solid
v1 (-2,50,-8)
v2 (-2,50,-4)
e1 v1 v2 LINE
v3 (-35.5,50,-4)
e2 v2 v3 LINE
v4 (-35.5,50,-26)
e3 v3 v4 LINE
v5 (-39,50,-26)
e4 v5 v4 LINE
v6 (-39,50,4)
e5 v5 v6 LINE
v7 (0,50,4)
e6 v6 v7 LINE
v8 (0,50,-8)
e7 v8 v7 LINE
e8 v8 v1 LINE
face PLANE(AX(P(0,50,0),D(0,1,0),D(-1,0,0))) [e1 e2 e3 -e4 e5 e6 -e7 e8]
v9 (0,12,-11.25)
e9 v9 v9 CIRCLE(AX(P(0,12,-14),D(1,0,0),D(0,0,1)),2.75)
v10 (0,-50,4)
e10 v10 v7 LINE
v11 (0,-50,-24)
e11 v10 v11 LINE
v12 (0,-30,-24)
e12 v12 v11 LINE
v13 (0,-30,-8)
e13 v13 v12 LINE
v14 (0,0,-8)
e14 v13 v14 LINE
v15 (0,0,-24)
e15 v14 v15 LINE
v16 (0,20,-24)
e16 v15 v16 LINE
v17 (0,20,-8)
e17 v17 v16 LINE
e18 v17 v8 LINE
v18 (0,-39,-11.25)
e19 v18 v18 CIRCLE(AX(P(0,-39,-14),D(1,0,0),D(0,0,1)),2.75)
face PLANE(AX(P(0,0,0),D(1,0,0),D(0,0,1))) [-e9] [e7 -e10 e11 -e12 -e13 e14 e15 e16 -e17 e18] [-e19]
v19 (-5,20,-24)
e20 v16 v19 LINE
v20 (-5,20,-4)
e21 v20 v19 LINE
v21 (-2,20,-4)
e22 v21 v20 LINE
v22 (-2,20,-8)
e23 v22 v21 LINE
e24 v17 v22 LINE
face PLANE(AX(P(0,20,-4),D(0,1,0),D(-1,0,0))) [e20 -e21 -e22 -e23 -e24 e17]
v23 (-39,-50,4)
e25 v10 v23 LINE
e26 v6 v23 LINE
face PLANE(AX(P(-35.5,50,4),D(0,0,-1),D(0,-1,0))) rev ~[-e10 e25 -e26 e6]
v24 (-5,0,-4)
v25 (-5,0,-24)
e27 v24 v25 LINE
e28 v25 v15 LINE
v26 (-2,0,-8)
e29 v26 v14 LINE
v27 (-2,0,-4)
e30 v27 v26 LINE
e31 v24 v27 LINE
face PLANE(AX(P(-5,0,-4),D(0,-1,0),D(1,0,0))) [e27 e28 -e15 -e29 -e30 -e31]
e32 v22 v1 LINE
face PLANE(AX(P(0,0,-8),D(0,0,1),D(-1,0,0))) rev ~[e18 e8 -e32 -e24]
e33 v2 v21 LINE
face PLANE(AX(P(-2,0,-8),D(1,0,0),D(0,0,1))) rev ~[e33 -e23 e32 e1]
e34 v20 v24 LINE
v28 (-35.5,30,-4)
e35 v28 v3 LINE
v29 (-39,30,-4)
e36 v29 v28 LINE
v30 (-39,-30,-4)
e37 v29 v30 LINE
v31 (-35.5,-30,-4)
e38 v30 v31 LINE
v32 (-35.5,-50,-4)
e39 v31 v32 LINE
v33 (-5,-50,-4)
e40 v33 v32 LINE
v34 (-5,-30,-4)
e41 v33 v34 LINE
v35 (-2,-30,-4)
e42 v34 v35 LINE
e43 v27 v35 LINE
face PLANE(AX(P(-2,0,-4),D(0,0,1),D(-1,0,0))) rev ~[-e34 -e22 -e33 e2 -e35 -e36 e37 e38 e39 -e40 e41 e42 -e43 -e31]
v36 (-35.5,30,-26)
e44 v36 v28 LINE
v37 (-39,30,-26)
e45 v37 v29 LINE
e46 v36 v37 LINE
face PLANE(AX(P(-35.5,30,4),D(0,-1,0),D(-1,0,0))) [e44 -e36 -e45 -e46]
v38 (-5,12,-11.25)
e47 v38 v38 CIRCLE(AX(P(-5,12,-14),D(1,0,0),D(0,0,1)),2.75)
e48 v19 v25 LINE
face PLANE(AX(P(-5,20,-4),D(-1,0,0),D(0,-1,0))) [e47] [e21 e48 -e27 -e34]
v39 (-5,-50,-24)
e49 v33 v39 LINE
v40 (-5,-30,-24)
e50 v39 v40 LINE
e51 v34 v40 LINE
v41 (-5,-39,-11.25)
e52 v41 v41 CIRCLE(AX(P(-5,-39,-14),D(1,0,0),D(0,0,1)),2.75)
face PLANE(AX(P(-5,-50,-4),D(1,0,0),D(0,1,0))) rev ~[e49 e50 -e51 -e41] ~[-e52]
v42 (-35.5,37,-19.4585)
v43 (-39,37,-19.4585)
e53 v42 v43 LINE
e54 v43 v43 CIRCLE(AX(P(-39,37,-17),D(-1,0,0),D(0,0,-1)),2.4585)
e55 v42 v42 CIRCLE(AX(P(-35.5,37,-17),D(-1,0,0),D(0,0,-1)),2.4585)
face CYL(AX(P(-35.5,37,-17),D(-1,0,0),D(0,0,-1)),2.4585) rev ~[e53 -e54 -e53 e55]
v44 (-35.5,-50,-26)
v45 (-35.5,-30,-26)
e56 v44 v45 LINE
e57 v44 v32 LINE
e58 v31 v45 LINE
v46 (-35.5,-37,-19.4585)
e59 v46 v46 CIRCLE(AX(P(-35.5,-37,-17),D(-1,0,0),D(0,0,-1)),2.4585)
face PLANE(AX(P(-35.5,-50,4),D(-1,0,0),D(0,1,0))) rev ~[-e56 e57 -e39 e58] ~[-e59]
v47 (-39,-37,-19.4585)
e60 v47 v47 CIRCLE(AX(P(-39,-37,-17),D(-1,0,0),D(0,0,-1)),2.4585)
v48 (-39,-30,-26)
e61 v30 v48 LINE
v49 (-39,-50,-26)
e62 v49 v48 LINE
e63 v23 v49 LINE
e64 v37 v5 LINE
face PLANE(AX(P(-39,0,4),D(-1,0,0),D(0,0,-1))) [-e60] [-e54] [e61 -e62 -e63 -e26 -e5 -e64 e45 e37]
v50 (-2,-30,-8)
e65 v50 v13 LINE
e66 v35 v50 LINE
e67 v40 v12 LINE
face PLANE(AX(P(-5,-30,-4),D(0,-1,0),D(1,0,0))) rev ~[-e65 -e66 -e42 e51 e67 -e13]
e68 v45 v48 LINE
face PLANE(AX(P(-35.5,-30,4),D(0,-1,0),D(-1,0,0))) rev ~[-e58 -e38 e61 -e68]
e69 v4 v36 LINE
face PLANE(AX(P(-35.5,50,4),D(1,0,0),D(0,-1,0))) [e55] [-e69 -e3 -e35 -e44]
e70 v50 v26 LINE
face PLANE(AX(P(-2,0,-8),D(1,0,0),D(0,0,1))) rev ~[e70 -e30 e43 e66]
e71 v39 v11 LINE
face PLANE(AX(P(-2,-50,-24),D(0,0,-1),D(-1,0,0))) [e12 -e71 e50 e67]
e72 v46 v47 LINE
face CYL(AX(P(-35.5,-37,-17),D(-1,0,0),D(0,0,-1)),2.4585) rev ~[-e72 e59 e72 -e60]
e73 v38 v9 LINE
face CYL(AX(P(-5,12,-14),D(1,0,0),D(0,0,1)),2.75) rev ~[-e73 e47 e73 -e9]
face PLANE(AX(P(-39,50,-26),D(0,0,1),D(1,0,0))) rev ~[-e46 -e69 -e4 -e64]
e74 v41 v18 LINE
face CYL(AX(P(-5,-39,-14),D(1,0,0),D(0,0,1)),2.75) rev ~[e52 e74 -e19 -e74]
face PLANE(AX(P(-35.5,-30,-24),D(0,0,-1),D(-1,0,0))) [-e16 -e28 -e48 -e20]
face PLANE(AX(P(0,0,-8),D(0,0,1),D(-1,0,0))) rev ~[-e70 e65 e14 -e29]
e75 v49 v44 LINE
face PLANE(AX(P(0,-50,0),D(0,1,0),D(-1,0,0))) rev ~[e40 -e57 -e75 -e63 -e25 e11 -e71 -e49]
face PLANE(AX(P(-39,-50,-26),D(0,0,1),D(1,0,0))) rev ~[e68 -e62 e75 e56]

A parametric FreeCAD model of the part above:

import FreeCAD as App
import Part
import Sketcher


def add_polygon(sketch, points):
    """Adds a closed chain of lines whose ends are joined by coincident constraints."""
    first, n = sketch.GeometryCount, len(points)
    for a, b in zip(points, points[1:] + points[:1]):
        sketch.addGeometry(Part.LineSegment(App.Vector(*a, 0), App.Vector(*b, 0)), False)
    for i in range(n):
        sketch.addConstraint(Sketcher.Constraint("Coincident", first + i, 2, first + (i + 1) % n, 1))

doc = App.newDocument("Part")
body = doc.addObject("PartDesign::Body", "Body")

# Sketch on XZ plane
sketch1 = doc.addObject("Sketcher::SketchObject", "Sketch")
body.addObject(sketch1)
sketch1.AttachmentSupport = (doc.XZ_Plane, [""])
sketch1.MapMode = "FlatFace"
add_polygon(sketch1, [(0, 8), (0, -8), (-2, -8), (-2, -4), (-39, -4), (-39, 4), (-2, 4), (-2, 8)])  # lines 0-7
sketch1.addConstraint(Sketcher.Constraint("Vertical", 0))
sketch1.addConstraint(Sketcher.Constraint("Horizontal", 1))
sketch1.addConstraint(Sketcher.Constraint("Vertical", 2))
sketch1.addConstraint(Sketcher.Constraint("Horizontal", 3))
sketch1.addConstraint(Sketcher.Constraint("Vertical", 4))
sketch1.addConstraint(Sketcher.Constraint("Horizontal", 5))
sketch1.addConstraint(Sketcher.Constraint("Vertical", 6))
sketch1.addConstraint(Sketcher.Constraint("Horizontal", 7))
sketch1.addConstraint(Sketcher.Constraint("Symmetric", 0, 2, 7, 2, -1, 1))
sketch1.addConstraint(Sketcher.Constraint("Symmetric", 2, 2, 5, 2, -1))
sketch1.addConstraint(Sketcher.Constraint("DistanceX", 1, 2, 1, 1, 2.0))
sketch1.addConstraint(Sketcher.Constraint("DistanceX", 3, 2, 3, 1, 37.0))
sketch1.addConstraint(Sketcher.Constraint("DistanceY", 2, 1, 2, 2, 4.0))
sketch1.addConstraint(Sketcher.Constraint("DistanceY", 4, 1, 4, 2, 8.0))
pad1 = doc.addObject("PartDesign::Pad", "Pad")
body.addObject(pad1)
pad1.Profile = sketch1
pad1.Length = 100
pad1.Midplane = True

# Sketch on XY plane
sketch2 = doc.addObject("Sketcher::SketchObject", "Sketch001")
body.addObject(sketch2)
sketch2.AttachmentSupport = (doc.XY_Plane, [""])
sketch2.MapMode = "FlatFace"
sketch2.AttachmentOffset = App.Placement(App.Vector(0, 0, 4), App.Rotation())
add_polygon(sketch2, [(-39, -30), (-39, -50), (-35.5, -50), (-35.5, -30)])  # lines 0-3
sketch2.addConstraint(Sketcher.Constraint("Vertical", 0))
sketch2.addConstraint(Sketcher.Constraint("Horizontal", 1))
sketch2.addConstraint(Sketcher.Constraint("Vertical", 2))
sketch2.addConstraint(Sketcher.Constraint("Horizontal", 3))
sketch2.addConstraint(Sketcher.Constraint("DistanceY", 0, 2, 0, 1, 20.0))
sketch2.addConstraint(Sketcher.Constraint("DistanceX", 1, 1, 1, 2, 3.5))
sketch2.addConstraint(Sketcher.Constraint("DistanceX", 0, 2, -1, 1, 39.0))
sketch2.addConstraint(Sketcher.Constraint("DistanceY", 0, 2, -1, 1, 50.0))
pad2 = doc.addObject("PartDesign::Pad", "Pad001")
body.addObject(pad2)
pad2.Profile = sketch2
pad2.Type = "TwoLengths"
pad2.Length = 20
pad2.Length2 = 30

# Sketch on XY plane
sketch3 = doc.addObject("Sketcher::SketchObject", "Sketch002")
body.addObject(sketch3)
sketch3.AttachmentSupport = (doc.XY_Plane, [""])
sketch3.MapMode = "FlatFace"
sketch3.AttachmentOffset = App.Placement(App.Vector(0, 0, 4), App.Rotation())
add_polygon(sketch3, [(-39, 50), (-39, 30), (-35.5, 30), (-35.5, 50)])  # lines 0-3
sketch3.addConstraint(Sketcher.Constraint("Vertical", 0))
sketch3.addConstraint(Sketcher.Constraint("Horizontal", 1))
sketch3.addConstraint(Sketcher.Constraint("Vertical", 2))
sketch3.addConstraint(Sketcher.Constraint("Horizontal", 3))
sketch3.addConstraint(Sketcher.Constraint("DistanceY", 0, 2, 0, 1, 20.0))
sketch3.addConstraint(Sketcher.Constraint("DistanceX", 1, 1, 1, 2, 3.5))
sketch3.addConstraint(Sketcher.Constraint("DistanceX", 0, 2, -1, 1, 39.0))
sketch3.addConstraint(Sketcher.Constraint("DistanceY", -1, 1, 0, 2, 30.0))
pad3 = doc.addObject("PartDesign::Pad", "Pad002")
body.addObject(pad3)
pad3.Profile = sketch3
pad3.Type = "TwoLengths"
pad3.Length = 20
pad3.Length2 = 30

# Sketch on YZ plane
sketch4 = doc.addObject("Sketcher::SketchObject", "Sketch003")
body.addObject(sketch4)
sketch4.AttachmentSupport = (doc.YZ_Plane, [""])
sketch4.MapMode = "FlatFace"
sketch4.AttachmentOffset = App.Placement(App.Vector(0, 0, -35.5), App.Rotation())
sketch4.addGeometry(Part.Circle(App.Vector(37, -17, 0), App.Vector(0, 0, 1), 2.5), False)
sketch4.addGeometry(Part.Circle(App.Vector(-37, -17, 0), App.Vector(0, 0, 1), 2.5), False)
sketch4.addConstraint(Sketcher.Constraint("Equal", 0, 1))
sketch4.addConstraint(Sketcher.Constraint("Symmetric", 0, 3, 1, 3, -2))
sketch4.addConstraint(Sketcher.Constraint("Diameter", 0, 4.917))
sketch4.addConstraint(Sketcher.Constraint("DistanceX", -1, 1, 0, 3, 37.0))
sketch4.addConstraint(Sketcher.Constraint("DistanceY", 0, 3, -1, 1, 17.0))
doc.recompute()
hole = doc.addObject("PartDesign::Hole", "Hole")
body.addObject(hole)
hole.Profile = sketch4
hole.ThreadType = "None"
hole.Diameter = 4.917
hole.DepthType = "ThroughAll"

# Sketch on YZ plane
sketch5 = doc.addObject("Sketcher::SketchObject", "Sketch004")
body.addObject(sketch5)
sketch5.AttachmentSupport = (doc.YZ_Plane, [""])
sketch5.MapMode = "FlatFace"
sketch5.AttachmentOffset = App.Placement(App.Vector(0, 0, -35.5), App.Rotation())
add_polygon(sketch5, [(-50, 4), (66, 4), (66, 40), (-50, 40)])  # lines 0-3
sketch5.addConstraint(Sketcher.Constraint("Horizontal", 0))
sketch5.addConstraint(Sketcher.Constraint("Vertical", 1))
sketch5.addConstraint(Sketcher.Constraint("Horizontal", 2))
sketch5.addConstraint(Sketcher.Constraint("Vertical", 3))
sketch5.addConstraint(Sketcher.Constraint("DistanceY", -1, 1, 0, 2, 4.0))
sketch5.addConstraint(Sketcher.Constraint("DistanceX", 2, 2, -1, 1, 50.0))
sketch5.addConstraint(Sketcher.Constraint("DistanceX", 0, 1, 0, 2, 115.7943))
sketch5.addConstraint(Sketcher.Constraint("DistanceY", 1, 1, 1, 2, 36.3372))
pocket1 = doc.addObject("PartDesign::Pocket", "Pocket")
body.addObject(pocket1)
pocket1.Profile = sketch5
pocket1.Length = 9999
pocket1.Midplane = True

# Sketch on XY plane
sketch6 = doc.addObject("Sketcher::SketchObject", "Sketch005")
body.addObject(sketch6)
sketch6.AttachmentSupport = (doc.XY_Plane, [""])
sketch6.MapMode = "FlatFace"
sketch6.AttachmentOffset = App.Placement(App.Vector(0, 0, -4), App.Rotation())
add_polygon(sketch6, [(0, -30), (0, -50), (-5, -50), (-5, -30)])  # lines 0-3
sketch6.addConstraint(Sketcher.Constraint("Vertical", 0))
sketch6.addConstraint(Sketcher.Constraint("Horizontal", 1))
sketch6.addConstraint(Sketcher.Constraint("Vertical", 2))
sketch6.addConstraint(Sketcher.Constraint("Horizontal", 3))
sketch6.addConstraint(Sketcher.Constraint("PointOnObject", 0, 2, -2))
sketch6.addConstraint(Sketcher.Constraint("DistanceX", 1, 2, 1, 1, 5.0))
sketch6.addConstraint(Sketcher.Constraint("DistanceY", 0, 2, 0, 1, 20.0))
sketch6.addConstraint(Sketcher.Constraint("DistanceY", 0, 2, -1, 1, 50.0))
pad4 = doc.addObject("PartDesign::Pad", "Pad003")
body.addObject(pad4)
pad4.Profile = sketch6
pad4.Length = 20
pad4.Reversed = True

# Sketch on YZ plane
sketch7 = doc.addObject("Sketcher::SketchObject", "Sketch006")
body.addObject(sketch7)
sketch7.AttachmentSupport = (doc.YZ_Plane, [""])
sketch7.MapMode = "FlatFace"
sketch7.AttachmentOffset = App.Placement(App.Vector(0, 0, -5), App.Rotation())
sketch7.addGeometry(Part.Circle(App.Vector(-39, -14, 0), App.Vector(0, 0, 1), 2.8), False)
sketch7.addConstraint(Sketcher.Constraint("Diameter", 0, 5.5))
sketch7.addConstraint(Sketcher.Constraint("DistanceX", 0, 3, -1, 1, 39.0))
sketch7.addConstraint(Sketcher.Constraint("DistanceY", 0, 3, -1, 1, 14.0))
doc.recompute()
hole2 = doc.addObject("PartDesign::Hole", "Hole001")
body.addObject(hole2)
hole2.Profile = sketch7
hole2.ThreadType = "None"
hole2.Diameter = 5.5
hole2.DepthType = "ThroughAll"
hole2.Reversed = True

# Sketch on XY plane
sketch8 = doc.addObject("Sketcher::SketchObject", "Sketch007")
body.addObject(sketch8)
sketch8.AttachmentSupport = (doc.XY_Plane, [""])
sketch8.MapMode = "FlatFace"
sketch8.AttachmentOffset = App.Placement(App.Vector(0, 0, -4), App.Rotation())
add_polygon(sketch8, [(0, 20), (0, 0), (-5, 0), (-5, 20)])  # lines 0-3
sketch8.addConstraint(Sketcher.Constraint("Vertical", 0))
sketch8.addConstraint(Sketcher.Constraint("Horizontal", 1))
sketch8.addConstraint(Sketcher.Constraint("Vertical", 2))
sketch8.addConstraint(Sketcher.Constraint("Horizontal", 3))
sketch8.addConstraint(Sketcher.Constraint("Coincident", 0, 2, -1, 1))
sketch8.addConstraint(Sketcher.Constraint("DistanceX", 1, 2, 1, 1, 5.0))
sketch8.addConstraint(Sketcher.Constraint("DistanceY", 0, 2, 0, 1, 20.0))
pad5 = doc.addObject("PartDesign::Pad", "Pad004")
body.addObject(pad5)
pad5.Profile = sketch8
pad5.Length = 20
pad5.Reversed = True

# Sketch on YZ plane
sketch9 = doc.addObject("Sketcher::SketchObject", "Sketch008")
body.addObject(sketch9)
sketch9.AttachmentSupport = (doc.YZ_Plane, [""])
sketch9.MapMode = "FlatFace"
sketch9.AttachmentOffset = App.Placement(App.Vector(0, 0, -5), App.Rotation())
sketch9.addGeometry(Part.Circle(App.Vector(12, -14, 0), App.Vector(0, 0, 1), 2.8), False)
sketch9.addConstraint(Sketcher.Constraint("Diameter", 0, 5.5))
sketch9.addConstraint(Sketcher.Constraint("DistanceX", -1, 1, 0, 3, 12.0))
sketch9.addConstraint(Sketcher.Constraint("DistanceY", 0, 3, -1, 1, 14.0))
doc.recompute()
hole3 = doc.addObject("PartDesign::Hole", "Hole002")
body.addObject(hole3)
hole3.Profile = sketch9
hole3.ThreadType = "None"
hole3.Diameter = 5.5
hole3.DepthType = "ThroughAll"
hole3.Reversed = True

doc.recompute()
